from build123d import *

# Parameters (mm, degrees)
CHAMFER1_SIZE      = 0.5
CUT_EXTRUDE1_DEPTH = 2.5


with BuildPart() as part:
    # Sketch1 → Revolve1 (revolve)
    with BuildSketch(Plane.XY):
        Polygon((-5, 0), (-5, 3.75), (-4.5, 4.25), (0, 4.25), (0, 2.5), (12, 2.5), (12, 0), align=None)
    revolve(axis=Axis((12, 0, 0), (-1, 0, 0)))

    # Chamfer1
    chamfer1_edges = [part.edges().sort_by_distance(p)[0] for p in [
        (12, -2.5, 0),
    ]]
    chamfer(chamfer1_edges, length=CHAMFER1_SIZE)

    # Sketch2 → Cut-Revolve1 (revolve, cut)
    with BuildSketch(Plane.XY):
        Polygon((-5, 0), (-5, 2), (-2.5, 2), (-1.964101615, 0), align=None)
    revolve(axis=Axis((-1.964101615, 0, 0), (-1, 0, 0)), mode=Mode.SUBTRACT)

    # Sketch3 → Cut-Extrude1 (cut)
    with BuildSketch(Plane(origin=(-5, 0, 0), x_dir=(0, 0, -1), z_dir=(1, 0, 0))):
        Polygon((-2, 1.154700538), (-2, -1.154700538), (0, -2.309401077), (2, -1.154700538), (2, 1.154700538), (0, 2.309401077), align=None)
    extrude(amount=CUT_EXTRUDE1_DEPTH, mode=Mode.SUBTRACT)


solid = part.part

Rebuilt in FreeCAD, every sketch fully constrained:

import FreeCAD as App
import Part
import Sketcher
from FreeCAD import Vector
Q = App.Units.Quantity


def edges_at(feature, points):
    """Names of the edges that pass closest to the given points."""
    edges = feature.Shape.Edges
    near = lambda p: min(range(len(edges)), key=lambda i: edges[i].distToShape(Part.Vertex(*p))[0])
    return sorted({f"Edge{near(p) + 1}" for p in points})


def add_polygon(sketch, points):
    """Adds a closed chain of lines whose ends are joined by coincident constraints."""
    first, n = sketch.GeometryCount, len(points)
    for a, b in zip(points, points[1:] + points[:1]):
        sketch.addGeometry(Part.LineSegment(App.Vector(*a, 0), App.Vector(*b, 0)), False)
    for i in range(n):
        sketch.addConstraint(Sketcher.Constraint("Coincident", first + i, 2, first + (i + 1) % n, 1))

doc = App.newDocument("Part")
body = doc.addObject("PartDesign::Body", "Body")

sketch1 = body.newObject("Sketcher::SketchObject", "Sketch")
sketch1.AttachmentSupport = (doc.getObject("XY_Plane"), [""])
sketch1.MapMode = "FlatFace"
add_polygon(sketch1, [(-5, 3.75), (-5, 0), (12, 0), (12, 2.5), (0, 2.5), (0, 4.25), (-4.5, 4.25)])
sketch1.addConstraint([
    Sketcher.Constraint("Vertical", 0),
    Sketcher.Constraint("Horizontal", 1),
    Sketcher.Constraint("Vertical", 2),
    Sketcher.Constraint("Horizontal", 3),
    Sketcher.Constraint("Vertical", 4),
    Sketcher.Constraint("Horizontal", 5),
    Sketcher.Constraint("PointOnObject", 0, 2, -1),
    Sketcher.Constraint("PointOnObject", 3, 2, -2),
    Sketcher.Constraint("DistanceX", 1, 1, 1, 2, Q("17 mm")),
    Sketcher.Constraint("DistanceX", 3, 2, 3, 1, Q("12 mm")),
    Sketcher.Constraint("Angle", 6, Q("-135 deg")),
    Sketcher.Constraint("DistanceX", 5, 2, 5, 1, Q("4.5 mm")),
    Sketcher.Constraint("DistanceY", 2, 1, 2, 2, Q("2.5 mm")),
    Sketcher.Constraint("DistanceY", 0, 2, 0, 1, Q("3.75 mm")),
])
revolution = body.newObject("PartDesign::Revolution", "Revolution")
revolution.Profile = sketch1
revolution.ReferenceAxis = (sketch1, ["H_Axis"])
revolution.Angle = 360
doc.recompute()

chamfer = body.newObject("PartDesign::Chamfer", "Chamfer")
chamfer.Base = (revolution, edges_at(revolution, [(12, -2.5, 0)]))
chamfer.Size = 0.5

sketch2 = body.newObject("Sketcher::SketchObject", "Sketch001")
sketch2.AttachmentSupport = (doc.getObject("XY_Plane"), [""])
sketch2.MapMode = "FlatFace"
add_polygon(sketch2, [(-5, 2), (-5, 0), (-1.964102, 0), (-2.5, 2)])
sketch2.addConstraint([
    Sketcher.Constraint("Vertical", 0),
    Sketcher.Constraint("Horizontal", 1),
    Sketcher.Constraint("Horizontal", 3),
    Sketcher.Constraint("PointOnObject", 0, 2, -1),
    Sketcher.Constraint("DistanceY", 0, 2, 0, 1, Q("2 mm")),
    Sketcher.Constraint("Angle", 2, Q("105 deg")),
    Sketcher.Constraint("DistanceX", 3, 2, 3, 1, Q("2.5 mm")),
    Sketcher.Constraint("DistanceX", 0, 2, -1, 1, Q("5 mm")),
])
groove = body.newObject("PartDesign::Groove", "Groove")
groove.Profile = sketch2
groove.ReferenceAxis = (sketch2, ["H_Axis"])
groove.Angle = 360

sketch3 = body.newObject("Sketcher::SketchObject", "Sketch002")
sketch3.AttachmentSupport = (doc.getObject("YZ_Plane"), [""])
sketch3.MapMode = "FlatFace"
sketch3.AttachmentOffset = App.Placement(Vector(0, 0, -5), App.Rotation())
add_polygon(sketch3, [(1.154701, 2), (-1.154701, 2), (-2.309401, 0), (-1.154701, -2), (1.154701, -2), (2.309401, 0)])
sketch3.addConstraint([
    Sketcher.Constraint("Horizontal", 0),
    Sketcher.Constraint("Horizontal", 3),
    Sketcher.Constraint("Symmetric", 0, 2, 3, 2, -1, 1),
    Sketcher.Constraint("Symmetric", 1, 2, 4, 2, -1, 1),
    Sketcher.Constraint("PointOnObject", 1, 2, -1),
    Sketcher.Constraint("Parallel", 2, 5),
    Sketcher.Constraint("Vertical", 0, 2, 2, 2),
    Sketcher.Constraint("Angle", 1, Q("-120 deg")),
    Sketcher.Constraint("DistanceY", -1, 1, 0, 2, Q("2 mm")),
    Sketcher.Constraint("DistanceX", 0, 2, 0, 1, Q("2.309401 mm")),
])
pocket1 = body.newObject("PartDesign::Pocket", "Pocket")
pocket1.Profile = sketch3
pocket1.Length = 2.5
pocket1.Reversed = True

doc.recompute()
